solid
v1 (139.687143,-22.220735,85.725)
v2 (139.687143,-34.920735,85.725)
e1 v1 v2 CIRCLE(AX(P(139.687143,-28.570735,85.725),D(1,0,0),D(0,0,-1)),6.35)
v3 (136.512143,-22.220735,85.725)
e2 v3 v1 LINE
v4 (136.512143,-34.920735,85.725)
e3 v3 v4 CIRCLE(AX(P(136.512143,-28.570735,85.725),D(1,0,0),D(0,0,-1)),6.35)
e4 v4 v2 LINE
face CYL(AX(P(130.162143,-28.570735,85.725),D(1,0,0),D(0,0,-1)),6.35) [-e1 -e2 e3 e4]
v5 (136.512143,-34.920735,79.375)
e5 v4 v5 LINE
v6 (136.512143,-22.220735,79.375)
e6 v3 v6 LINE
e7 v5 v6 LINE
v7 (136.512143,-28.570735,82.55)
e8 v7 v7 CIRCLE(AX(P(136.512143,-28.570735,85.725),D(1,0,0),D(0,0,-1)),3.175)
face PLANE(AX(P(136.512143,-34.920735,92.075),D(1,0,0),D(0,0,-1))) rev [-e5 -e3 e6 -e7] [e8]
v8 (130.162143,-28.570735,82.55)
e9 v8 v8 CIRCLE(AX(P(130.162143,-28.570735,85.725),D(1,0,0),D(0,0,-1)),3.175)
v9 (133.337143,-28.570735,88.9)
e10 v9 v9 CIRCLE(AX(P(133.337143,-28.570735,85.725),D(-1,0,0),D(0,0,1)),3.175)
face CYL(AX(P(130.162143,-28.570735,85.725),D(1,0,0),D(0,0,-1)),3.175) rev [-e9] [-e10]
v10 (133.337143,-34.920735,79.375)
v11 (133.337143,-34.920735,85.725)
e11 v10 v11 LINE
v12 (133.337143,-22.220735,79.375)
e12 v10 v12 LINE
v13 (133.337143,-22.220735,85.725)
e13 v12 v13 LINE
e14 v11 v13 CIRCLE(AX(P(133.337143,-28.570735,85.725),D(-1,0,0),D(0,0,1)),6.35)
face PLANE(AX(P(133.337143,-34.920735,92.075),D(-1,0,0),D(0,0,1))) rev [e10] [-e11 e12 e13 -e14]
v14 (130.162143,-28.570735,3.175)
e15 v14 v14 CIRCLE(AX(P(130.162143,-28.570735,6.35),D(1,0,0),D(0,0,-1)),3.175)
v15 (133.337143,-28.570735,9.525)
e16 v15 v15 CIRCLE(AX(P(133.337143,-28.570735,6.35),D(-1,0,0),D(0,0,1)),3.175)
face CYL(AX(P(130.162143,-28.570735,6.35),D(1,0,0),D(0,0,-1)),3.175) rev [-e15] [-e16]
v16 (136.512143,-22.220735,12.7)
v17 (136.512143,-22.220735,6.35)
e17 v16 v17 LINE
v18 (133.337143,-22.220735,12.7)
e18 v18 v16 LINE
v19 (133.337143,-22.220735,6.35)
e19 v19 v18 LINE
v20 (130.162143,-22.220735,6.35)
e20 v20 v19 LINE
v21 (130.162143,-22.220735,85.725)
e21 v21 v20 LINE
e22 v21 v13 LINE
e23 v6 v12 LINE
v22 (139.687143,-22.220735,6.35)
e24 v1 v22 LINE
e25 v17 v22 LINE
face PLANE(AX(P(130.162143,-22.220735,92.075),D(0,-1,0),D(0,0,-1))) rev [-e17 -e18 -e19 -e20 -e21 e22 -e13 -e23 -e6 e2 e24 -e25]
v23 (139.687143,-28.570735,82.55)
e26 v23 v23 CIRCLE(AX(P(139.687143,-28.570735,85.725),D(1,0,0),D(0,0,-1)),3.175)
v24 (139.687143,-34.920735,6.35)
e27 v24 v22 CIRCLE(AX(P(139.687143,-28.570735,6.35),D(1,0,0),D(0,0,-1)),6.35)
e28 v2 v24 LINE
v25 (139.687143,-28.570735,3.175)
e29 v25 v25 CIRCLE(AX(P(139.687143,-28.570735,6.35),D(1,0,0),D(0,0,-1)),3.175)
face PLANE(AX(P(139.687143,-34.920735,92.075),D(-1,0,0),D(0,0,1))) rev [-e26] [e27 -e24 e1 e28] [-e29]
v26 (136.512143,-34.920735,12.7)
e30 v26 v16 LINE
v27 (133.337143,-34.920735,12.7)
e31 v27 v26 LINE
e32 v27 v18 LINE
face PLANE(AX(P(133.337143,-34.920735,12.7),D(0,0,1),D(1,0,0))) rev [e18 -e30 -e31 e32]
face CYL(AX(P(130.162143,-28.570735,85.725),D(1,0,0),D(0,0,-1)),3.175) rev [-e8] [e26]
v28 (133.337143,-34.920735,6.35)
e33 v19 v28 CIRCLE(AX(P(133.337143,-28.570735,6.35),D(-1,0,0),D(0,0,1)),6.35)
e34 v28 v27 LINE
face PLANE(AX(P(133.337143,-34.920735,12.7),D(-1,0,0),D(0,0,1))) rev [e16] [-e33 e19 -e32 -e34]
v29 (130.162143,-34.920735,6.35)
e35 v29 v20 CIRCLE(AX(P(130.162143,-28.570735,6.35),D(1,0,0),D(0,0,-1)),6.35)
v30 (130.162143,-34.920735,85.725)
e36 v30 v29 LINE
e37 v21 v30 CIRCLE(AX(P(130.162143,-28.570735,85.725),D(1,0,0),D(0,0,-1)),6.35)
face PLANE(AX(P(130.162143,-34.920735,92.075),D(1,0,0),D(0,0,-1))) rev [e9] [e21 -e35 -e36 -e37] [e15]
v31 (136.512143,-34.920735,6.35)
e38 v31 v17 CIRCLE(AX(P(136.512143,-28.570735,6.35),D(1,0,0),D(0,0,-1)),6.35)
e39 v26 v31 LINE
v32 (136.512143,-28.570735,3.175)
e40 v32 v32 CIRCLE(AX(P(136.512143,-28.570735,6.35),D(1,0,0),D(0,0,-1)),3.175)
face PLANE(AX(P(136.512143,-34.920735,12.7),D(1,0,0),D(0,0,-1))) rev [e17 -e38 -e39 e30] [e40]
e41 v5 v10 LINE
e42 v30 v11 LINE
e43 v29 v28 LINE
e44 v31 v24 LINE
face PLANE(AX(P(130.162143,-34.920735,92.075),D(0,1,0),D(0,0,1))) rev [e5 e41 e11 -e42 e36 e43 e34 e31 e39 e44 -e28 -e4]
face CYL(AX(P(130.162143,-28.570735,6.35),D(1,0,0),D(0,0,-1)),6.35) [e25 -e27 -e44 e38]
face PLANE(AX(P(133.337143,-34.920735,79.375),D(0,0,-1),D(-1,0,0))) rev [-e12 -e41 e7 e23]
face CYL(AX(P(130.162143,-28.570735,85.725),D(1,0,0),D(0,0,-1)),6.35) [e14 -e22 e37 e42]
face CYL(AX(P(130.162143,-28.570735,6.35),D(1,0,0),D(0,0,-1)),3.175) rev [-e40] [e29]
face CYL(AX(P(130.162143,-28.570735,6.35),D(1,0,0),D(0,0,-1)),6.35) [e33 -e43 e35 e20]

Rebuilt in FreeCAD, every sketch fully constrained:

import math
import FreeCAD as App
import Part
import Sketcher

V = App.Vector
Q = App.Units.Quantity

doc = App.newDocument("Part")
body = doc.addObject("PartDesign::Body", "Body")

# Sketch on XY plane
sketch1 = body.newObject("Sketcher::SketchObject", "Sketch")
sketch1.AttachmentSupport = (doc.getObject("XY_Plane"), [""])
sketch1.MapMode = "FlatFace"
sketch1.addGeometry(Part.LineSegment(V(130, -22, 0), V(130, -35, 0)), False)
sketch1.addGeometry(Part.LineSegment(V(130, -35, 0), V(140, -35, 0)), False)
sketch1.addGeometry(Part.LineSegment(V(140, -35, 0), V(140, -22, 0)), False)
sketch1.addGeometry(Part.LineSegment(V(140, -22, 0), V(130, -22, 0)), False)
sketch1.addConstraint(Sketcher.Constraint("Coincident", 0, 2, 1, 1))
sketch1.addConstraint(Sketcher.Constraint("Coincident", 1, 2, 2, 1))
sketch1.addConstraint(Sketcher.Constraint("Coincident", 2, 2, 3, 1))
sketch1.addConstraint(Sketcher.Constraint("Coincident", 3, 2, 0, 1))
sketch1.addConstraint(Sketcher.Constraint("Vertical", 0))
sketch1.addConstraint(Sketcher.Constraint("Horizontal", 1))
sketch1.addConstraint(Sketcher.Constraint("Vertical", 2))
sketch1.addConstraint(Sketcher.Constraint("Horizontal", 3))
sketch1.addConstraint(Sketcher.Constraint("DistanceY", 0, 2, 0, 1, Q("0.5 in")))
sketch1.addConstraint(Sketcher.Constraint("DistanceX", 1, 1, 1, 2, Q("0.375 in")))
sketch1.addConstraint(Sketcher.Constraint("DistanceX", -1, 1, 0, 2, Q("130.162143 mm")))
sketch1.addConstraint(Sketcher.Constraint("DistanceY", 0, 2, -1, 1, Q("34.920735 mm")))
pad1 = body.newObject("PartDesign::Pad", "Pad")
pad1.Profile = sketch1
pad1.Length = Q("3.625 in")

# Sketch on XZ plane
sketch2 = body.newObject("Sketcher::SketchObject", "Sketch001")
sketch2.AttachmentSupport = (doc.getObject("XZ_Plane"), [""])
sketch2.MapMode = "FlatFace"
sketch2.AttachmentOffset = App.Placement(V(0, 0, 22.220735), App.Rotation())
sketch2.addGeometry(Part.LineSegment(V(133.3, 79.4, 0), V(133.3, 92.1, 0)), False)
sketch2.addGeometry(Part.LineSegment(V(133.3, 92.1, 0), V(136.5, 92.1, 0)), False)
sketch2.addGeometry(Part.LineSegment(V(136.5, 92.1, 0), V(136.5, 79.4, 0)), False)
sketch2.addGeometry(Part.LineSegment(V(136.5, 79.4, 0), V(133.3, 79.4, 0)), False)
sketch2.addGeometry(Part.LineSegment(V(133.3, 0, 0), V(133.3, 12.7, 0)), False)
sketch2.addGeometry(Part.LineSegment(V(133.3, 12.7, 0), V(136.5, 12.7, 0)), False)
sketch2.addGeometry(Part.LineSegment(V(136.5, 12.7, 0), V(136.5, 0, 0)), False)
sketch2.addGeometry(Part.LineSegment(V(136.5, 0, 0), V(133.3, 0, 0)), False)
sketch2.addConstraint(Sketcher.Constraint("Coincident", 0, 2, 1, 1))
sketch2.addConstraint(Sketcher.Constraint("Coincident", 1, 2, 2, 1))
sketch2.addConstraint(Sketcher.Constraint("Coincident", 2, 2, 3, 1))
sketch2.addConstraint(Sketcher.Constraint("Coincident", 3, 2, 0, 1))
sketch2.addConstraint(Sketcher.Constraint("Coincident", 4, 2, 5, 1))
sketch2.addConstraint(Sketcher.Constraint("Coincident", 5, 2, 6, 1))
sketch2.addConstraint(Sketcher.Constraint("Coincident", 6, 2, 7, 1))
sketch2.addConstraint(Sketcher.Constraint("Coincident", 7, 2, 4, 1))
sketch2.addConstraint(Sketcher.Constraint("Vertical", 0))
sketch2.addConstraint(Sketcher.Constraint("Horizontal", 1))
sketch2.addConstraint(Sketcher.Constraint("Vertical", 2))
sketch2.addConstraint(Sketcher.Constraint("Horizontal", 3))
sketch2.addConstraint(Sketcher.Constraint("Vertical", 4))
sketch2.addConstraint(Sketcher.Constraint("Horizontal", 5))
sketch2.addConstraint(Sketcher.Constraint("Vertical", 6))
sketch2.addConstraint(Sketcher.Constraint("Horizontal", 7))
sketch2.addConstraint(Sketcher.Constraint("PointOnObject", 6, 2, -1))
sketch2.addConstraint(Sketcher.Constraint("Vertical", 3, 2, 4, 2))
sketch2.addConstraint(Sketcher.Constraint("Vertical", 2, 2, 5, 2))
sketch2.addConstraint(Sketcher.Constraint("Equal", 2, 4))
sketch2.addConstraint(Sketcher.Constraint("DistanceY", 0, 1, 0, 2, Q("0.5 in")))
sketch2.addConstraint(Sketcher.Constraint("DistanceX", 1, 1, 1, 2, Q("0.125 in")))
sketch2.addConstraint(Sketcher.Constraint("DistanceY", -1, 1, 0, 2, Q("3.625 in")))
sketch2.addConstraint(Sketcher.Constraint("DistanceX", -1, 1, 0, 2, Q("133.337143 mm")))
pocket1 = body.newObject("PartDesign::Pocket", "Pocket")
pocket1.Profile = sketch2
pocket1.Type = "ThroughAll"
pocket1.Reversed = True

# Sketch on YZ plane
sketch3 = body.newObject("Sketcher::SketchObject", "Sketch002")
sketch3.AttachmentSupport = (doc.getObject("YZ_Plane"), [""])
sketch3.MapMode = "FlatFace"
sketch3.AttachmentOffset = App.Placement(V(0, 0, 139.687143), App.Rotation())
sketch3.addGeometry(Part.Circle(V(-28.6, 6.3, 0), V(0, 0, 1), 3.2), False)
sketch3.addGeometry(Part.LineSegment(V(-22.2, 0, 0), V(-22.2, 6.3, 0)), False)
sketch3.addGeometry(Part.ArcOfCircle(Part.Circle(V(-28.6, 6.3, 0), V(0, 0, 1), 6.3), math.radians(-90), math.radians(0)), False)
sketch3.addGeometry(Part.LineSegment(V(-28.6, 0, 0), V(-22.2, 0, 0)), False)
sketch3.addGeometry(Part.LineSegment(V(-34.9, 0, 0), V(-28.6, 0, 0)), False)
sketch3.addGeometry(Part.ArcOfCircle(Part.Circle(V(-28.6, 6.3, 0), V(0, 0, 1), 6.3), math.radians(180), math.radians(270)), False)
sketch3.addGeometry(Part.LineSegment(V(-34.9, 6.3, 0), V(-34.9, 0, 0)), False)
sketch3.addGeometry(Part.Circle(V(-28.6, 85.7, 0), V(0, 0, 1), 3.2), False)
sketch3.addGeometry(Part.ArcOfCircle(Part.Circle(V(-28.6, 85.7, 0), V(0, 0, 1), 6.3), math.radians(0), math.radians(90)), False)
sketch3.addGeometry(Part.LineSegment(V(-22.2, 85.7, 0), V(-22.2, 92.1, 0)), False)
sketch3.addGeometry(Part.LineSegment(V(-22.2, 92.1, 0), V(-28.6, 92.1, 0)), False)
sketch3.addGeometry(Part.ArcOfCircle(Part.Circle(V(-28.6, 85.7, 0), V(0, 0, 1), 6.3), math.radians(90), math.radians(180)), False)
sketch3.addGeometry(Part.LineSegment(V(-28.6, 92.1, 0), V(-34.9, 92.1, 0)), False)
sketch3.addGeometry(Part.LineSegment(V(-34.9, 92.1, 0), V(-34.9, 85.7, 0)), False)
sketch3.addConstraint(Sketcher.Constraint("Tangent", 1, 2, 2, 2))
sketch3.addConstraint(Sketcher.Constraint("Tangent", 2, 1, 3, 1))
sketch3.addConstraint(Sketcher.Constraint("Coincident", 3, 2, 1, 1))
sketch3.addConstraint(Sketcher.Constraint("Tangent", 4, 2, 5, 2))
sketch3.addConstraint(Sketcher.Constraint("Tangent", 5, 1, 6, 1))
sketch3.addConstraint(Sketcher.Constraint("Coincident", 6, 2, 4, 1))
sketch3.addConstraint(Sketcher.Constraint("Tangent", 8, 1, 9, 1))
sketch3.addConstraint(Sketcher.Constraint("Coincident", 9, 2, 10, 1))
sketch3.addConstraint(Sketcher.Constraint("Tangent", 10, 2, 8, 2))
sketch3.addConstraint(Sketcher.Constraint("Tangent", 11, 1, 12, 1))
sketch3.addConstraint(Sketcher.Constraint("Coincident", 12, 2, 13, 1))
sketch3.addConstraint(Sketcher.Constraint("Tangent", 13, 2, 11, 2))
sketch3.addConstraint(Sketcher.Constraint("Vertical", 1))
sketch3.addConstraint(Sketcher.Constraint("Horizontal", 3))
sketch3.addConstraint(Sketcher.Constraint("Horizontal", 4))
sketch3.addConstraint(Sketcher.Constraint("Vertical", 6))
sketch3.addConstraint(Sketcher.Constraint("Vertical", 9))
sketch3.addConstraint(Sketcher.Constraint("Horizontal", 10))
sketch3.addConstraint(Sketcher.Constraint("Horizontal", 12))
sketch3.addConstraint(Sketcher.Constraint("Vertical", 13))
sketch3.addConstraint(Sketcher.Constraint("Coincident", 2, 3, 0, 3))
sketch3.addConstraint(Sketcher.Constraint("Coincident", 5, 3, 0, 3))
sketch3.addConstraint(Sketcher.Constraint("Coincident", 8, 3, 7, 3))
sketch3.addConstraint(Sketcher.Constraint("Coincident", 11, 3, 7, 3))
sketch3.addConstraint(Sketcher.Constraint("Equal", 2, 5))
sketch3.addConstraint(Sketcher.Constraint("Equal", 0, 7))
sketch3.addConstraint(Sketcher.Constraint("Equal", 5, 8))
sketch3.addConstraint(Sketcher.Constraint("Equal", 8, 11))
sketch3.addConstraint(Sketcher.Constraint("PointOnObject", 2, 1, -1))
sketch3.addConstraint(Sketcher.Constraint("Vertical", 5, 3, 7, 3))
sketch3.addConstraint(Sketcher.Constraint("Diameter", 0, Q("0.25 in")))
sketch3.addConstraint(Sketcher.Constraint("Radius", 2, Q("0.25 in")))
sketch3.addConstraint(Sketcher.Constraint("DistanceY", -1, 1, 7, 3, Q("3.375 in")))
sketch3.addConstraint(Sketcher.Constraint("DistanceX", 0, 3, -1, 1, Q("28.570735 mm")))
pocket2 = body.newObject("PartDesign::Pocket", "Pocket001")
pocket2.Profile = sketch3
pocket2.Type = "ThroughAll"

doc.recompute()
